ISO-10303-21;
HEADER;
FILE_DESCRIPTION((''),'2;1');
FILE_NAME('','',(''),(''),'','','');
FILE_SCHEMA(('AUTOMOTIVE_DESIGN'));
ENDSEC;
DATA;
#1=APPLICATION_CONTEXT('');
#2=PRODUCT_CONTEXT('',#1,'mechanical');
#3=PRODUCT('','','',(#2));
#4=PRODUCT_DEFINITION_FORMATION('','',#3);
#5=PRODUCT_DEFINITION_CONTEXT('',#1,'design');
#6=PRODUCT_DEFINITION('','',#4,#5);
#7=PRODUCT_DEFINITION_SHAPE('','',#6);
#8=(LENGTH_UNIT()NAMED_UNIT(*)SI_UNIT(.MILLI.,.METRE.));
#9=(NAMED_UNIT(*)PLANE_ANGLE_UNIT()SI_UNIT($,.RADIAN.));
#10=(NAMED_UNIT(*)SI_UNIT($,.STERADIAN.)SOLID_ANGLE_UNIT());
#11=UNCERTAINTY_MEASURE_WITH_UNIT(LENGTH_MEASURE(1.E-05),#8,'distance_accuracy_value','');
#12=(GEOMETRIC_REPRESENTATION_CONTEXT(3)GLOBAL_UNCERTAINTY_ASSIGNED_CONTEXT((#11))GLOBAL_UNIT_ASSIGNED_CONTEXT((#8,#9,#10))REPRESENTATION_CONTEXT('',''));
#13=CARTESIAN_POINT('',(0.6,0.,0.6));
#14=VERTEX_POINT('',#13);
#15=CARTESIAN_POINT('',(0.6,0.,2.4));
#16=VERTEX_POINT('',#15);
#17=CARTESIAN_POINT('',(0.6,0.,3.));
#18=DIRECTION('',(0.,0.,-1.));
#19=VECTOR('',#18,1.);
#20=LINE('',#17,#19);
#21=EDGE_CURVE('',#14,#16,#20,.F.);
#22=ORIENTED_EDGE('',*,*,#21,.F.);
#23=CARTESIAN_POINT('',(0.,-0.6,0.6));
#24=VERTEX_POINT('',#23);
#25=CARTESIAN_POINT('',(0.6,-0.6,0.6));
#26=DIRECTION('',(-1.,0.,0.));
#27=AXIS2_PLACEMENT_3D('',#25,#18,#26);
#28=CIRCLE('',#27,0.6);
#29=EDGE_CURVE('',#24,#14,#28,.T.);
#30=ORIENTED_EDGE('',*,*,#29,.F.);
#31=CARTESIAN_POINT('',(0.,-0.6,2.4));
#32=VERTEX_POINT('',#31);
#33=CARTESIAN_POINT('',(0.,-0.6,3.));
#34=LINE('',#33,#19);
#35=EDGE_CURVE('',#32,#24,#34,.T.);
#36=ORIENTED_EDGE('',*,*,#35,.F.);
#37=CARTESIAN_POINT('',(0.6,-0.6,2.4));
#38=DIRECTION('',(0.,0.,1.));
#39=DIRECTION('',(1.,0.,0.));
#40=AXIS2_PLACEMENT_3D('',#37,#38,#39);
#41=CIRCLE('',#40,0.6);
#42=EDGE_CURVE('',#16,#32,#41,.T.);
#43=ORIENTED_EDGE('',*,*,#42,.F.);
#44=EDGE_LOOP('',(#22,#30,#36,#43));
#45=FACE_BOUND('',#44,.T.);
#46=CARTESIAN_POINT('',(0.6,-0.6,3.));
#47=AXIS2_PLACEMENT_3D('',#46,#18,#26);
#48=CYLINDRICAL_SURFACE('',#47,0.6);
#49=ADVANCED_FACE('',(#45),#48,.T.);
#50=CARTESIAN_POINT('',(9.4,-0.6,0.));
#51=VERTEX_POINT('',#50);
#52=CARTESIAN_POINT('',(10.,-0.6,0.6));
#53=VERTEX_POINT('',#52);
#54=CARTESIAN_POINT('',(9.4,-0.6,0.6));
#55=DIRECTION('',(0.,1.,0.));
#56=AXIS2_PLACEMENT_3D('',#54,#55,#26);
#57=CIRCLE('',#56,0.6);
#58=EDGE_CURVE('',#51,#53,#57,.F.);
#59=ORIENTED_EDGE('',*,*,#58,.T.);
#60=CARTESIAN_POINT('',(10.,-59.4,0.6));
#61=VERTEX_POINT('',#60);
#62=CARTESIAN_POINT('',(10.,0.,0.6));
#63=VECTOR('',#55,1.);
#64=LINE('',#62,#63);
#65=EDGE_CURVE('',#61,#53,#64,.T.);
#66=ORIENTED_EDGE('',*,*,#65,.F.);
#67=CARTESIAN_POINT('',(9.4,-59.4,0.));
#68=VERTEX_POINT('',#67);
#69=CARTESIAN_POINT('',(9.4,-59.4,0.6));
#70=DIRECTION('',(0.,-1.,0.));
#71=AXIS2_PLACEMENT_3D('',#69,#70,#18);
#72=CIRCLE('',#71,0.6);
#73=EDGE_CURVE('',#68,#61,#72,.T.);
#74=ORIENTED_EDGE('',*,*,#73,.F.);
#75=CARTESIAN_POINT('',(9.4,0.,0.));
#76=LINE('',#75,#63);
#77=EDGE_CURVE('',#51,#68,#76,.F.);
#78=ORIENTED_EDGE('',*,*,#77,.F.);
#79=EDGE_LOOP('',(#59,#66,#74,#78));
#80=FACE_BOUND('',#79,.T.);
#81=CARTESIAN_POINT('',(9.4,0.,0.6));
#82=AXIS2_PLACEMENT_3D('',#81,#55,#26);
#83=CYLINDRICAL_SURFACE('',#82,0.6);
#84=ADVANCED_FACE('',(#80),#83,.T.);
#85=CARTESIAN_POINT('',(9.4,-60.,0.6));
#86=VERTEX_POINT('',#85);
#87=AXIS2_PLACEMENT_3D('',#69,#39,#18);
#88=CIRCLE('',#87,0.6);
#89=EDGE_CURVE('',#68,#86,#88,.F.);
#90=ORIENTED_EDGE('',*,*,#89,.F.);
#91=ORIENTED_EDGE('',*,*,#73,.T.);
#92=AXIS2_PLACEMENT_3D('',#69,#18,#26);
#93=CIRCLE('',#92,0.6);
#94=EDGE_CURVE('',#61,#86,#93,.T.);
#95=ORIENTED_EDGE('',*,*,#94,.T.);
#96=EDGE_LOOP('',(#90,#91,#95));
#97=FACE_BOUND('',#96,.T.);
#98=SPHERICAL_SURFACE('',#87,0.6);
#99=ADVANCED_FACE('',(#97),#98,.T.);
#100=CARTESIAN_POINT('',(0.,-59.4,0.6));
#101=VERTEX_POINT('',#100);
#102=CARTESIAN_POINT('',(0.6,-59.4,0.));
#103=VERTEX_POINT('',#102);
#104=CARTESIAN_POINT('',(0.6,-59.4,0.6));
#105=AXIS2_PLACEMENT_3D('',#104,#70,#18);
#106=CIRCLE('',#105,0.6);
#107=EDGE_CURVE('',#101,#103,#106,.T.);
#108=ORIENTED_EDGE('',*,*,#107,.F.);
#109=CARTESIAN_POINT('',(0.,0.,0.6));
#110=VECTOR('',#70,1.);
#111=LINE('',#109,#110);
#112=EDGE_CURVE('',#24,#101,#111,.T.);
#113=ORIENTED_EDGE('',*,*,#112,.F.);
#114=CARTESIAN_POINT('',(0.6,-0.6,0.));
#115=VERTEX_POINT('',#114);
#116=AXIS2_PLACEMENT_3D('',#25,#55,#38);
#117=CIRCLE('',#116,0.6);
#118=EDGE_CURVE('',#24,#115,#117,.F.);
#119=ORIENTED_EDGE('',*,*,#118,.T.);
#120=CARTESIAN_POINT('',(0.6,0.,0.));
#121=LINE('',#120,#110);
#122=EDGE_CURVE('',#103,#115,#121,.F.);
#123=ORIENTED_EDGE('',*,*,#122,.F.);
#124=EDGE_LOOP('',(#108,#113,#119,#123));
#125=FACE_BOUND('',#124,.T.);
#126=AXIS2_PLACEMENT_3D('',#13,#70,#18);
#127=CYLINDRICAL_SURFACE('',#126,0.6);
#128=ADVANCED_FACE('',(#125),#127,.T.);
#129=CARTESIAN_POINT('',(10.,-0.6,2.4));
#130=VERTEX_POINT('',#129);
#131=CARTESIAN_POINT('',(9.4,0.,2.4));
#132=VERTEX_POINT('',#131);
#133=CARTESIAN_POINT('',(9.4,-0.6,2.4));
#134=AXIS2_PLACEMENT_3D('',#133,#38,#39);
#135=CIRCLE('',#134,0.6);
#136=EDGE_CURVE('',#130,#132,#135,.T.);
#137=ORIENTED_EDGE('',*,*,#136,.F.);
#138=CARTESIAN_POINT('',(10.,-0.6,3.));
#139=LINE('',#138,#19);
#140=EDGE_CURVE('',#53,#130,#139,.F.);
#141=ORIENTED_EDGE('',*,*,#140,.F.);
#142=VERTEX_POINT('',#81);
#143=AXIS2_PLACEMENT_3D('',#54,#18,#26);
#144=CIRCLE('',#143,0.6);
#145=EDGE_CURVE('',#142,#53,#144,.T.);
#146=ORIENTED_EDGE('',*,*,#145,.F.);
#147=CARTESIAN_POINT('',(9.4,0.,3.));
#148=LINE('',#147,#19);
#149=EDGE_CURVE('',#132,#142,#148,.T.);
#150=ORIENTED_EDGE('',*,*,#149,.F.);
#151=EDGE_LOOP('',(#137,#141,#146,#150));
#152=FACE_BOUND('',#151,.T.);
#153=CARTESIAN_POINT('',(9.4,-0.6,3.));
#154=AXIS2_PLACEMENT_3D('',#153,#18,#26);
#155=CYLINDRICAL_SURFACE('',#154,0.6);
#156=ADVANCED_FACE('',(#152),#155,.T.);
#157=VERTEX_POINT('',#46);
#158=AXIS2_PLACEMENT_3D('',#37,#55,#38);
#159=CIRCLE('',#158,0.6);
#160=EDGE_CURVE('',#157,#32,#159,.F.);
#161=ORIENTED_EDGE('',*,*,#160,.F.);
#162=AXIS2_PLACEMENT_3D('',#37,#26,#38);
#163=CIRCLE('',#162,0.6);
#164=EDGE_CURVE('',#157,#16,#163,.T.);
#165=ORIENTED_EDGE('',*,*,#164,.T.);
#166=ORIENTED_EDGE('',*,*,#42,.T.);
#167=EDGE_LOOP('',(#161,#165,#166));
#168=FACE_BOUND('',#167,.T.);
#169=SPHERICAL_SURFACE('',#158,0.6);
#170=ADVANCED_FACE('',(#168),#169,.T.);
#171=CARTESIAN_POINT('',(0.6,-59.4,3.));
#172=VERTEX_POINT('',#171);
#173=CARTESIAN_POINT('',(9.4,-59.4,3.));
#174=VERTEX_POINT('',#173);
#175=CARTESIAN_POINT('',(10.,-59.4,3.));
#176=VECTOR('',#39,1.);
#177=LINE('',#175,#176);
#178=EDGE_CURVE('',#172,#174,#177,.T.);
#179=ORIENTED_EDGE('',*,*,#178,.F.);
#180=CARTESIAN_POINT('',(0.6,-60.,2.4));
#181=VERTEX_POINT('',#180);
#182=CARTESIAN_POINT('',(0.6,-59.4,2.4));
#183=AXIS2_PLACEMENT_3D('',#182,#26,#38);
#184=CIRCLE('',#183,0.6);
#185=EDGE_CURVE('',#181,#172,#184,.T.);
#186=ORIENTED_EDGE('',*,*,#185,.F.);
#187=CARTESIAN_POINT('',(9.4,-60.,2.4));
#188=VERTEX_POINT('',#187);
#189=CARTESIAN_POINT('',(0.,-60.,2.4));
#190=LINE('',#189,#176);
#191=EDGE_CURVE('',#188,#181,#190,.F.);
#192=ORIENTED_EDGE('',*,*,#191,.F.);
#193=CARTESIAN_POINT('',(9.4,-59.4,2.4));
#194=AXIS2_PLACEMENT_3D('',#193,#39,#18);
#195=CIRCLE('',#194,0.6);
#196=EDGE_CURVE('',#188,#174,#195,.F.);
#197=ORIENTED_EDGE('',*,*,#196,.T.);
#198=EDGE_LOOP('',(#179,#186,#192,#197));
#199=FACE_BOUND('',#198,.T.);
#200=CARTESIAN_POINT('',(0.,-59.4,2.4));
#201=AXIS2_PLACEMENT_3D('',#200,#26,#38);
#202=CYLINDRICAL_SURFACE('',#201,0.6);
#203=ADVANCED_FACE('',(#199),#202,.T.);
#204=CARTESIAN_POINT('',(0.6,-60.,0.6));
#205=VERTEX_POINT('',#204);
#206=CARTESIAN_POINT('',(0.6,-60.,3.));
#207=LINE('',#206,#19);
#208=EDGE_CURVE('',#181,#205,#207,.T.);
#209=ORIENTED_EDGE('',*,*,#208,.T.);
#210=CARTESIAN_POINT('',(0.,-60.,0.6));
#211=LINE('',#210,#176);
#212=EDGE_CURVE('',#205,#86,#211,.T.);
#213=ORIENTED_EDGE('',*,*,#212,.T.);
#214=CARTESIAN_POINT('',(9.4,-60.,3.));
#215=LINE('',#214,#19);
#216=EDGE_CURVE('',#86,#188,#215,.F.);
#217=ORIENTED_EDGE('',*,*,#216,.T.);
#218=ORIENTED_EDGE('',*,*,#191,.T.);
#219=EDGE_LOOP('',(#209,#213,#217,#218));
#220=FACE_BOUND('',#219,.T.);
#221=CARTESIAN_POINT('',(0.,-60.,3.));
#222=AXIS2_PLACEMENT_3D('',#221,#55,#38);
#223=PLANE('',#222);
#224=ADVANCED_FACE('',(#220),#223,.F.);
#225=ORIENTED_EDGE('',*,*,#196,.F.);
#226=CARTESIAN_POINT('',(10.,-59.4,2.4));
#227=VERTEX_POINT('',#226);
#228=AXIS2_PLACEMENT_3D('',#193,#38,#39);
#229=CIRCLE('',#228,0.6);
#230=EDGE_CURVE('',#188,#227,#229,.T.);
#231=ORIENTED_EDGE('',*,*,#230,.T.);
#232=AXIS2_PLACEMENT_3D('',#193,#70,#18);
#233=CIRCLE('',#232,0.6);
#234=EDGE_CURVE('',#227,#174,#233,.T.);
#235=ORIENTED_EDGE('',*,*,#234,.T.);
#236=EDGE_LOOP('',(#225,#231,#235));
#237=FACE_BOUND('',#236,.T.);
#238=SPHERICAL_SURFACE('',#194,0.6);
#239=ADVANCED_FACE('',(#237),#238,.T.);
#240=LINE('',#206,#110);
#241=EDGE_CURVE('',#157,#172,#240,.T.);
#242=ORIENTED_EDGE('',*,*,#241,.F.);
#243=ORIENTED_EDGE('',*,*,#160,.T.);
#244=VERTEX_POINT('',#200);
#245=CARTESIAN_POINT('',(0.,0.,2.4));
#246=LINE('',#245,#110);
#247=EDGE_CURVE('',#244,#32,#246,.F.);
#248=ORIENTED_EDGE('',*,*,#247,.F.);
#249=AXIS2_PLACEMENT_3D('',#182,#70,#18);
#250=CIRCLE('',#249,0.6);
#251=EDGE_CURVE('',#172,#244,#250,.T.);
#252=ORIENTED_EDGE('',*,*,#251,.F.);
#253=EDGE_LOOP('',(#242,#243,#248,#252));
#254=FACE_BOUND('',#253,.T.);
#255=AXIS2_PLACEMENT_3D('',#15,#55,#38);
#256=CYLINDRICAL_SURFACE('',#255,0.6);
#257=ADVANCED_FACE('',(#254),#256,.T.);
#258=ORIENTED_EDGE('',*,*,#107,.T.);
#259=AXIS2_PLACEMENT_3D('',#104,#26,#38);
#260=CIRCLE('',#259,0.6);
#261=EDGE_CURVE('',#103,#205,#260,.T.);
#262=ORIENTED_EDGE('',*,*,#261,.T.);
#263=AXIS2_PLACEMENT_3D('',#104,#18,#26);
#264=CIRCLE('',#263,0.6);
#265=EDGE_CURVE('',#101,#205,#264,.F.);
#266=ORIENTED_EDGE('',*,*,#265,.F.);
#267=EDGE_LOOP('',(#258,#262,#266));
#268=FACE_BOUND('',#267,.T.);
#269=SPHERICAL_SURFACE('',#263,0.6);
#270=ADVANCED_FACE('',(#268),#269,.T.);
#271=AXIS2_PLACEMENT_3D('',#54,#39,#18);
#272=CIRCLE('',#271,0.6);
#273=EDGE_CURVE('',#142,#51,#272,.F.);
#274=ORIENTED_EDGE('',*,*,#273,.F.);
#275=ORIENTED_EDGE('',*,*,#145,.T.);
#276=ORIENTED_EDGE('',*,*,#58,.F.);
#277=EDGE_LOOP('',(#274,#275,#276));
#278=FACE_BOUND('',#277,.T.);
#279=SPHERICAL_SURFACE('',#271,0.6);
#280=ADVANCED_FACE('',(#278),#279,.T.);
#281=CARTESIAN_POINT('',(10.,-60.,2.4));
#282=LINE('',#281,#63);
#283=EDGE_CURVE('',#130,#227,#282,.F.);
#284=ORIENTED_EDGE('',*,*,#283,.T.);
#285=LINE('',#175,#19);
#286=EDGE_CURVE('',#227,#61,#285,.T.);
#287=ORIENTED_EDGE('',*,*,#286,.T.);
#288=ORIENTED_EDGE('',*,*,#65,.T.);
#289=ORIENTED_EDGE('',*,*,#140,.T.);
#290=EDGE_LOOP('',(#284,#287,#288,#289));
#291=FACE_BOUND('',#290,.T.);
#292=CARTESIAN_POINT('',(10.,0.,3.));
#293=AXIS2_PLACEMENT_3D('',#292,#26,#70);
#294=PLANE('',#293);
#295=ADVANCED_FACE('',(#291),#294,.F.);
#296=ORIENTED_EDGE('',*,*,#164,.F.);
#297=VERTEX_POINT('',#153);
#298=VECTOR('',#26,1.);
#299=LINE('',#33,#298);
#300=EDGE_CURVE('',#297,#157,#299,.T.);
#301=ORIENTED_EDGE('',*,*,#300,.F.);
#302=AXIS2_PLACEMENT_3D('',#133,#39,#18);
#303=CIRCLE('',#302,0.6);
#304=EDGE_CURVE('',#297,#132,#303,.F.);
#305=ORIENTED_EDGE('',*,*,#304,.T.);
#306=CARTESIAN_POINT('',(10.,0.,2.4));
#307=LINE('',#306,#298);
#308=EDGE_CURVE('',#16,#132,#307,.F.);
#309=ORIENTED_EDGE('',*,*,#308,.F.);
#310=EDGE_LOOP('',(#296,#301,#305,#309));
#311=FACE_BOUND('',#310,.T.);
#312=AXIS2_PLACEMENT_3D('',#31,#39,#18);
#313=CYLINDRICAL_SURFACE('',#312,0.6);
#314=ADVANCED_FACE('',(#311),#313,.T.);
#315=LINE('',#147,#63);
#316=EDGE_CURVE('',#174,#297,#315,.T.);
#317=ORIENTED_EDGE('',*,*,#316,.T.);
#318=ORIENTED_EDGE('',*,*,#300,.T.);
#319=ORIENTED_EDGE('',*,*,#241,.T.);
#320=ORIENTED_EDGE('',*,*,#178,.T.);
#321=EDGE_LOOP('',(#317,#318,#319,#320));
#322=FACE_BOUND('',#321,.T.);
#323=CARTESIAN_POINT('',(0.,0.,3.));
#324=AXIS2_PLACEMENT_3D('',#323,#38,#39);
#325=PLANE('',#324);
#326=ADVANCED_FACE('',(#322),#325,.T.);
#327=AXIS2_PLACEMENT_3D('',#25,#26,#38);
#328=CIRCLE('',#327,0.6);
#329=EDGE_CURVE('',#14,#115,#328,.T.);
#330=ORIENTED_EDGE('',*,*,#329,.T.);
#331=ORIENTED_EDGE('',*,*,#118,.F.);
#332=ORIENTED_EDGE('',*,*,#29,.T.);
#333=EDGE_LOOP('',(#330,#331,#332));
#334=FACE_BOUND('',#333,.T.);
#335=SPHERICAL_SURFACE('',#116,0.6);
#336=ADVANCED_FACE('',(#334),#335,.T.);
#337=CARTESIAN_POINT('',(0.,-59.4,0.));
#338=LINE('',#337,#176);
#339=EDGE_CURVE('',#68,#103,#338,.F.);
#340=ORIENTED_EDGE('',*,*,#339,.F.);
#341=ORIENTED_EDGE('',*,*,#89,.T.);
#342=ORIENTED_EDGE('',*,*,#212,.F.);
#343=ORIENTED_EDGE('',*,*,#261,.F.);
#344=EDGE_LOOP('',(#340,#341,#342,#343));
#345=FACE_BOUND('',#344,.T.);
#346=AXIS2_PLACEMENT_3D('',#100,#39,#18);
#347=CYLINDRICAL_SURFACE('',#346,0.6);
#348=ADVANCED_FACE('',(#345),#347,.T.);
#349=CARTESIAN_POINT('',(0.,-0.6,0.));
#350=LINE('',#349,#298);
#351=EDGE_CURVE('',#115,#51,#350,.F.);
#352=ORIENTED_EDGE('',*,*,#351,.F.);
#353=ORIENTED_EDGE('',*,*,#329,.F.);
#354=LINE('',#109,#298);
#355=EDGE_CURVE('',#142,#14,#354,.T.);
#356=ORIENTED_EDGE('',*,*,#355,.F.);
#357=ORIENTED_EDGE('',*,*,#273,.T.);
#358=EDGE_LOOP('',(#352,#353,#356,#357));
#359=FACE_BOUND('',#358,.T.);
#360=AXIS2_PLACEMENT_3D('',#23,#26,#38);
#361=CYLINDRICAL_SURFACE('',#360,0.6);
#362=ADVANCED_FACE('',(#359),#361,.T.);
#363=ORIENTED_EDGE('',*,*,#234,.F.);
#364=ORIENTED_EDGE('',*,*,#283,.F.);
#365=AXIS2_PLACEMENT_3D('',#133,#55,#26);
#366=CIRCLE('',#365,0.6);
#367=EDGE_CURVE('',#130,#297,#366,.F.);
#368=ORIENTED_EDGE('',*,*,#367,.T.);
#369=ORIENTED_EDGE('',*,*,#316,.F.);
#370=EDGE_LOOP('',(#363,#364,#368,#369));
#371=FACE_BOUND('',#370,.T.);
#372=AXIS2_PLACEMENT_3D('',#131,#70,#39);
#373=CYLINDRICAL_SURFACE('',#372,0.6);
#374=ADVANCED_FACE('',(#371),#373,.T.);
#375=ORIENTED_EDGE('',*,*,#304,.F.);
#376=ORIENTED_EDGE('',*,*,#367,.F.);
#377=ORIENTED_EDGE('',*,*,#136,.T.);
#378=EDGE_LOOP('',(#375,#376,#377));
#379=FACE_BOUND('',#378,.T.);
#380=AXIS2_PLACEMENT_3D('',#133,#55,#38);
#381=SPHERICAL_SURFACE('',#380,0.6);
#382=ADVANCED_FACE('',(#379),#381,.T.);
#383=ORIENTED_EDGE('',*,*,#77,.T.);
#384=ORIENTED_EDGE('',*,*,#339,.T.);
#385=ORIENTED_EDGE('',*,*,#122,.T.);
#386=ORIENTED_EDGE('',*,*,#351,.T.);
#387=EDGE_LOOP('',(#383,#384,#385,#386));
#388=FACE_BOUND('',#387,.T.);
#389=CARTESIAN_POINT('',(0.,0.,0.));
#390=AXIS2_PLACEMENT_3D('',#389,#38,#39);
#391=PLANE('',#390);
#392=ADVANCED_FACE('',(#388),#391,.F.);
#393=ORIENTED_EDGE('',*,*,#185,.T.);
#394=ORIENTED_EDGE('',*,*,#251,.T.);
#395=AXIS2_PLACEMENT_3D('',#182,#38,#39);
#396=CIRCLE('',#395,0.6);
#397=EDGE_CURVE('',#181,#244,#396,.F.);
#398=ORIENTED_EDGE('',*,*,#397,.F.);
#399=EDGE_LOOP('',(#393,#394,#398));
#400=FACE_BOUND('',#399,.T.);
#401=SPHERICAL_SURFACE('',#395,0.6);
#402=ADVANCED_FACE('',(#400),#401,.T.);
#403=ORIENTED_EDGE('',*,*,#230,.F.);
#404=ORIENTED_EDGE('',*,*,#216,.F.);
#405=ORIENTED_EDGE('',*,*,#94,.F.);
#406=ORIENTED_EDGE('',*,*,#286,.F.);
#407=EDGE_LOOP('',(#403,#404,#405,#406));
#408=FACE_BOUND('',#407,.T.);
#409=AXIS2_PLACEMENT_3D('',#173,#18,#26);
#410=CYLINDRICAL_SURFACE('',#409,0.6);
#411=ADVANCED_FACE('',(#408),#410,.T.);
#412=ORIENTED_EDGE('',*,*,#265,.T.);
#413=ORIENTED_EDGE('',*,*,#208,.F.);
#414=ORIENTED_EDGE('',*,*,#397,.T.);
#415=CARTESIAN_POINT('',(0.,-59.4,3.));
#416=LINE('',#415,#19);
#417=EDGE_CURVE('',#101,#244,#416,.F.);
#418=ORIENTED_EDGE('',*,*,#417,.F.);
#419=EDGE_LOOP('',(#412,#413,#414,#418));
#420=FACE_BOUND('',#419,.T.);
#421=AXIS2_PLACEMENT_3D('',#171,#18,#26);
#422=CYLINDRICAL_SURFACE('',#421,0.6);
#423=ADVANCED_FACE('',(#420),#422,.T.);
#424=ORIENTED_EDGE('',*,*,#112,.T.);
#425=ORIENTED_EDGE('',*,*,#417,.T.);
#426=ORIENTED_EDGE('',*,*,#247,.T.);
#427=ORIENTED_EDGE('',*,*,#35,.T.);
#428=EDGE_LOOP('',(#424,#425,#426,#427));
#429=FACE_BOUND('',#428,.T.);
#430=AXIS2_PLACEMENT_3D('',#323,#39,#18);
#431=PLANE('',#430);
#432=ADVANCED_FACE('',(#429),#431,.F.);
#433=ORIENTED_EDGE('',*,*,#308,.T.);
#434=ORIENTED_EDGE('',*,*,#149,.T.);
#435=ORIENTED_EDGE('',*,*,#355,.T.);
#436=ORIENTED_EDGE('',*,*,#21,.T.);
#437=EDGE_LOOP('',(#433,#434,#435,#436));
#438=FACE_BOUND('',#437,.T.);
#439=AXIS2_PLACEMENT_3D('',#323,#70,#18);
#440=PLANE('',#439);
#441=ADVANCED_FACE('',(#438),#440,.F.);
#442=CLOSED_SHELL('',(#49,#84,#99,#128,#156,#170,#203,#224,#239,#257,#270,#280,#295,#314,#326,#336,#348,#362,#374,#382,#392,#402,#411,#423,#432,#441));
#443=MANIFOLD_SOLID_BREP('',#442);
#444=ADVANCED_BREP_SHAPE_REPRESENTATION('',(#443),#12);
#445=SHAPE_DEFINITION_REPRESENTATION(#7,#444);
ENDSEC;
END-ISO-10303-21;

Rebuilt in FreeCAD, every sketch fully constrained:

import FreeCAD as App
import Part
import Sketcher
Q = App.Units.Quantity

doc = App.newDocument("Part")
body = doc.addObject("PartDesign::Body", "Body")

sketch1 = body.newObject("Sketcher::SketchObject", "Sketch")
sketch1.AttachmentSupport = (doc.getObject("XY_Plane"), [""])
sketch1.MapMode = "FlatFace"
sketch1.addGeometry([
    Part.LineSegment(App.Vector(0, 0, 0), App.Vector(0, -60, 0)),
    Part.LineSegment(App.Vector(0, -60, 0), App.Vector(10, -60, 0)),
    Part.LineSegment(App.Vector(10, -60, 0), App.Vector(10, 0, 0)),
    Part.LineSegment(App.Vector(10, 0, 0), App.Vector(0, 0, 0)),
], False)
sketch1.addConstraint([
    Sketcher.Constraint("Coincident", 0, 2, 1, 1),
    Sketcher.Constraint("Coincident", 1, 2, 2, 1),
    Sketcher.Constraint("Coincident", 2, 2, 3, 1),
    Sketcher.Constraint("Coincident", 3, 2, 0, 1),
    Sketcher.Constraint("Vertical", 0),
    Sketcher.Constraint("Horizontal", 1),
    Sketcher.Constraint("Vertical", 2),
    Sketcher.Constraint("Horizontal", 3),
    Sketcher.Constraint("Coincident", 3, 2, -1, 1),
    Sketcher.Constraint("DistanceX", 1, 1, 1, 2, Q("10 mm")),
    Sketcher.Constraint("DistanceY", 0, 2, 0, 1, Q("60 mm")),
])
pad1 = body.newObject("PartDesign::Pad", "Pad")
pad1.Profile = sketch1
pad1.Length = 3
doc.recompute()

fillet = body.newObject("PartDesign::Fillet", "Fillet")
fillet.Base = (pad1, ["Edge1"])
fillet.UseAllEdges = True
fillet.Radius = 0.6

doc.recompute()
